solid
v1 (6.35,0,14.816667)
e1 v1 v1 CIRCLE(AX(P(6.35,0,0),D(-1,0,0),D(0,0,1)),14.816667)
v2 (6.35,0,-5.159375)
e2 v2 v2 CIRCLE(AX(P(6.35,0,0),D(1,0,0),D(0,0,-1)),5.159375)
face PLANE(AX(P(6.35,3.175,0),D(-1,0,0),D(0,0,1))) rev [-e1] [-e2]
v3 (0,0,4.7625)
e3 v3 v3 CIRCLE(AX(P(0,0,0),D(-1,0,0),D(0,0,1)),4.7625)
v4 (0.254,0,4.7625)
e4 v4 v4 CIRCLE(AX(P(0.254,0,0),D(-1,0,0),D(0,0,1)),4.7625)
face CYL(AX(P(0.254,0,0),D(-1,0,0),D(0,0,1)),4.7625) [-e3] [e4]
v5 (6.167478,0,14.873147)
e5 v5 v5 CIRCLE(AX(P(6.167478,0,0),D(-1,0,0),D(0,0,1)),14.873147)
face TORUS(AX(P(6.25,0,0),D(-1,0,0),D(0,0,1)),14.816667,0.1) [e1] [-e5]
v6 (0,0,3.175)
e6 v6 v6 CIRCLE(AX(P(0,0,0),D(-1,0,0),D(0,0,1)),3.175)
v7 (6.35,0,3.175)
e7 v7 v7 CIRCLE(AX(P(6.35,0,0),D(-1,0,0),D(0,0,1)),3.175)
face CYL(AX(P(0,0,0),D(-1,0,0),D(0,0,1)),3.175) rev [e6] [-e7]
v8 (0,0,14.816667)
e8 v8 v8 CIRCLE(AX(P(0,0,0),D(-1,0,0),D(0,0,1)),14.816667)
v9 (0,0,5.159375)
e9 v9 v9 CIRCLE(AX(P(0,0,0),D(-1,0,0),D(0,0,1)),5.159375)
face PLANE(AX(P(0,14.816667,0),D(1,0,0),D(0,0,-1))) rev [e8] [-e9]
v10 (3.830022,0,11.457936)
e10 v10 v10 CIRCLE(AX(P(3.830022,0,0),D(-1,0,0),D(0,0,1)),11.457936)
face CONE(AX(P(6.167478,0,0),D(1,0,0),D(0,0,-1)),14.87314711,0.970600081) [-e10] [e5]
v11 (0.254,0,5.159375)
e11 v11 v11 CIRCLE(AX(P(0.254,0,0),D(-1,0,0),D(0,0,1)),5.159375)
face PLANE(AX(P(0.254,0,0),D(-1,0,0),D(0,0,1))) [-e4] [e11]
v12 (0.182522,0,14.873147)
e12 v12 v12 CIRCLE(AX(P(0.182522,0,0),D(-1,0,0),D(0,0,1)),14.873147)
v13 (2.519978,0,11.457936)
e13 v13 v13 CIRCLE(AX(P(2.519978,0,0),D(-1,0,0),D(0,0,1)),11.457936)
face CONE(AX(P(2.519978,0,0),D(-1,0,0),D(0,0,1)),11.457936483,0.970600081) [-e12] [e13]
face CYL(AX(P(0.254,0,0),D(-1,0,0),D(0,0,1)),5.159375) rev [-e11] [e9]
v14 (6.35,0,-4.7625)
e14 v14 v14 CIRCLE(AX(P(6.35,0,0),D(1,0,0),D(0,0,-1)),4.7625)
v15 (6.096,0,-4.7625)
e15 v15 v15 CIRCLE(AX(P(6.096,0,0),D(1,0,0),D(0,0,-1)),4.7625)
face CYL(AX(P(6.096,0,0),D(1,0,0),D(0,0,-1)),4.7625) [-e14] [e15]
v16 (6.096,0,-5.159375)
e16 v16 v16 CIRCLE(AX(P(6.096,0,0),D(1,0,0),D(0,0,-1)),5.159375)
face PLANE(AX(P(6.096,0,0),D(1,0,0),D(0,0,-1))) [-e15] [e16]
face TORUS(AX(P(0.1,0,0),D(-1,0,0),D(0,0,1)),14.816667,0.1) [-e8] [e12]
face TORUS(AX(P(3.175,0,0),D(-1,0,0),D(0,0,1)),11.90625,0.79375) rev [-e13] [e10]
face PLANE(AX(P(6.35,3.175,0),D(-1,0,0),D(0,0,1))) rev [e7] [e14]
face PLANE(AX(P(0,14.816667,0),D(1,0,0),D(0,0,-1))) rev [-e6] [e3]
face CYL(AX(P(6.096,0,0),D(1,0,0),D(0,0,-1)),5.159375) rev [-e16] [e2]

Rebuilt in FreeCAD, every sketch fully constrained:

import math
import FreeCAD as App
import Part
import Sketcher

V = App.Vector
Q = App.Units.Quantity

doc = App.newDocument("Part")
body = doc.addObject("PartDesign::Body", "Body")

# Sketch on XY plane
sketch1 = body.newObject("Sketcher::SketchObject", "Sketch")
sketch1.AttachmentSupport = (doc.getObject("XY_Plane"), [""])
sketch1.MapMode = "FlatFace"
sketch1.addGeometry([
    Part.LineSegment(V(0, 3.17, 0), V(6.35, 3.17, 0)),  # 0
    Part.LineSegment(V(6.35, 3.17, 0), V(6.35, 14.82, 0)),  # 1
    Part.ArcOfCircle(Part.Circle(V(6.25, 14.82, 0), V(0, 0, 1), 0.1), math.radians(0), math.radians(146)),  # 2
    Part.LineSegment(V(6.17, 14.87, 0), V(3.83, 11.46, 0)),  # 3
    Part.ArcOfCircle(Part.Circle(V(3.17, 11.91, 0), V(0, 0, 1), 0.79), math.radians(-146), math.radians(-34)),  # 4
    Part.LineSegment(V(2.52, 11.46, 0), V(0.18, 14.87, 0)),  # 5
    Part.ArcOfCircle(Part.Circle(V(0.1, 14.82, 0), V(0, 0, 1), 0.1), math.radians(34), math.radians(180)),  # 6
    Part.LineSegment(V(0, 14.82, 0), V(0, 3.17, 0)),  # 7
], False)
sketch1.addConstraint([
    Sketcher.Constraint("Coincident", 0, 2, 1, 1),
    Sketcher.Constraint("Tangent", 1, 2, 2, 1),
    Sketcher.Constraint("Tangent", 2, 2, 3, 1),
    Sketcher.Constraint("Tangent", 3, 2, 4, 2),
    Sketcher.Constraint("Tangent", 4, 1, 5, 1),
    Sketcher.Constraint("Tangent", 5, 2, 6, 1),
    Sketcher.Constraint("Tangent", 6, 2, 7, 1),
    Sketcher.Constraint("Coincident", 7, 2, 0, 1),
    Sketcher.Constraint("Horizontal", 0),
    Sketcher.Constraint("Vertical", 1),
    Sketcher.Constraint("Vertical", 7),
    Sketcher.Constraint("Equal", 2, 6),
    Sketcher.Constraint("PointOnObject", 6, 2, -2),
    Sketcher.Constraint("Horizontal", 2, 3, 6, 3),
    Sketcher.Constraint("Horizontal", 3, 2, 4, 1),
    Sketcher.Constraint("Radius", 4, Q("0.03125 in")),
    Sketcher.Constraint("DistanceX", 0, 1, 0, 2, Q("0.25 in")),
    Sketcher.Constraint("Radius", 2, 0.1),
    Sketcher.Constraint("DistanceY", -1, 1, 4, 3, Q("0.46875 in")),
    Sketcher.Constraint("DistanceY", -1, 1, 0, 2, Q("0.125 in")),
    Sketcher.Constraint("DistanceY", -1, 1, 3, 2, Q("0.4510999 in")),
])
revolution = body.newObject("PartDesign::Revolution", "Revolution")
revolution.Profile = sketch1
revolution.ReferenceAxis = (sketch1, ["H_Axis"])
revolution.Angle = 360

# Sketch on YZ plane
sketch2 = body.newObject("Sketcher::SketchObject", "Sketch001")
sketch2.AttachmentSupport = (doc.getObject("YZ_Plane"), [""])
sketch2.MapMode = "FlatFace"
sketch2.AttachmentOffset = App.Placement(V(0, 0, 0.25 * 25.4), App.Rotation())
sketch2.addGeometry([
    Part.Circle(V(0, 0, 0), V(0, 0, 1), 5.2),
    Part.Circle(V(0, 0, 0), V(0, 0, 1), 4.8),
], False)
sketch2.addConstraint([
    Sketcher.Constraint("Coincident", 0, 3, -1, 1),
    Sketcher.Constraint("Coincident", 1, 3, -1, 1),
    Sketcher.Constraint("Diameter", 0, Q("0.40625 in")),
    Sketcher.Constraint("Diameter", 1, Q("0.375 in")),
])
pocket1 = body.newObject("PartDesign::Pocket", "Pocket")
pocket1.Profile = sketch2
pocket1.Length = Q("0.01 in")

# Sketch on YZ plane
sketch3 = body.newObject("Sketcher::SketchObject", "Sketch002")
sketch3.AttachmentSupport = (doc.getObject("YZ_Plane"), [""])
sketch3.MapMode = "FlatFace"
sketch3.AttachmentOffset = App.Placement(V(0, 0, 0.01 * 25.4), App.Rotation())
sketch3.addGeometry([
    Part.Circle(V(0, 0, 0), V(0, 0, 1), 5.2),
    Part.Circle(V(0, 0, 0), V(0, 0, 1), 4.8),
], False)
sketch3.addConstraint([
    Sketcher.Constraint("Coincident", 0, 3, -1, 1),
    Sketcher.Constraint("Coincident", 1, 3, -1, 1),
    Sketcher.Constraint("Diameter", 0, Q("0.40625 in")),
    Sketcher.Constraint("Diameter", 1, Q("0.375 in")),
])
pocket2 = body.newObject("PartDesign::Pocket", "Pocket001")
pocket2.Profile = sketch3
pocket2.Length = Q("0.01 in")

doc.recompute()
